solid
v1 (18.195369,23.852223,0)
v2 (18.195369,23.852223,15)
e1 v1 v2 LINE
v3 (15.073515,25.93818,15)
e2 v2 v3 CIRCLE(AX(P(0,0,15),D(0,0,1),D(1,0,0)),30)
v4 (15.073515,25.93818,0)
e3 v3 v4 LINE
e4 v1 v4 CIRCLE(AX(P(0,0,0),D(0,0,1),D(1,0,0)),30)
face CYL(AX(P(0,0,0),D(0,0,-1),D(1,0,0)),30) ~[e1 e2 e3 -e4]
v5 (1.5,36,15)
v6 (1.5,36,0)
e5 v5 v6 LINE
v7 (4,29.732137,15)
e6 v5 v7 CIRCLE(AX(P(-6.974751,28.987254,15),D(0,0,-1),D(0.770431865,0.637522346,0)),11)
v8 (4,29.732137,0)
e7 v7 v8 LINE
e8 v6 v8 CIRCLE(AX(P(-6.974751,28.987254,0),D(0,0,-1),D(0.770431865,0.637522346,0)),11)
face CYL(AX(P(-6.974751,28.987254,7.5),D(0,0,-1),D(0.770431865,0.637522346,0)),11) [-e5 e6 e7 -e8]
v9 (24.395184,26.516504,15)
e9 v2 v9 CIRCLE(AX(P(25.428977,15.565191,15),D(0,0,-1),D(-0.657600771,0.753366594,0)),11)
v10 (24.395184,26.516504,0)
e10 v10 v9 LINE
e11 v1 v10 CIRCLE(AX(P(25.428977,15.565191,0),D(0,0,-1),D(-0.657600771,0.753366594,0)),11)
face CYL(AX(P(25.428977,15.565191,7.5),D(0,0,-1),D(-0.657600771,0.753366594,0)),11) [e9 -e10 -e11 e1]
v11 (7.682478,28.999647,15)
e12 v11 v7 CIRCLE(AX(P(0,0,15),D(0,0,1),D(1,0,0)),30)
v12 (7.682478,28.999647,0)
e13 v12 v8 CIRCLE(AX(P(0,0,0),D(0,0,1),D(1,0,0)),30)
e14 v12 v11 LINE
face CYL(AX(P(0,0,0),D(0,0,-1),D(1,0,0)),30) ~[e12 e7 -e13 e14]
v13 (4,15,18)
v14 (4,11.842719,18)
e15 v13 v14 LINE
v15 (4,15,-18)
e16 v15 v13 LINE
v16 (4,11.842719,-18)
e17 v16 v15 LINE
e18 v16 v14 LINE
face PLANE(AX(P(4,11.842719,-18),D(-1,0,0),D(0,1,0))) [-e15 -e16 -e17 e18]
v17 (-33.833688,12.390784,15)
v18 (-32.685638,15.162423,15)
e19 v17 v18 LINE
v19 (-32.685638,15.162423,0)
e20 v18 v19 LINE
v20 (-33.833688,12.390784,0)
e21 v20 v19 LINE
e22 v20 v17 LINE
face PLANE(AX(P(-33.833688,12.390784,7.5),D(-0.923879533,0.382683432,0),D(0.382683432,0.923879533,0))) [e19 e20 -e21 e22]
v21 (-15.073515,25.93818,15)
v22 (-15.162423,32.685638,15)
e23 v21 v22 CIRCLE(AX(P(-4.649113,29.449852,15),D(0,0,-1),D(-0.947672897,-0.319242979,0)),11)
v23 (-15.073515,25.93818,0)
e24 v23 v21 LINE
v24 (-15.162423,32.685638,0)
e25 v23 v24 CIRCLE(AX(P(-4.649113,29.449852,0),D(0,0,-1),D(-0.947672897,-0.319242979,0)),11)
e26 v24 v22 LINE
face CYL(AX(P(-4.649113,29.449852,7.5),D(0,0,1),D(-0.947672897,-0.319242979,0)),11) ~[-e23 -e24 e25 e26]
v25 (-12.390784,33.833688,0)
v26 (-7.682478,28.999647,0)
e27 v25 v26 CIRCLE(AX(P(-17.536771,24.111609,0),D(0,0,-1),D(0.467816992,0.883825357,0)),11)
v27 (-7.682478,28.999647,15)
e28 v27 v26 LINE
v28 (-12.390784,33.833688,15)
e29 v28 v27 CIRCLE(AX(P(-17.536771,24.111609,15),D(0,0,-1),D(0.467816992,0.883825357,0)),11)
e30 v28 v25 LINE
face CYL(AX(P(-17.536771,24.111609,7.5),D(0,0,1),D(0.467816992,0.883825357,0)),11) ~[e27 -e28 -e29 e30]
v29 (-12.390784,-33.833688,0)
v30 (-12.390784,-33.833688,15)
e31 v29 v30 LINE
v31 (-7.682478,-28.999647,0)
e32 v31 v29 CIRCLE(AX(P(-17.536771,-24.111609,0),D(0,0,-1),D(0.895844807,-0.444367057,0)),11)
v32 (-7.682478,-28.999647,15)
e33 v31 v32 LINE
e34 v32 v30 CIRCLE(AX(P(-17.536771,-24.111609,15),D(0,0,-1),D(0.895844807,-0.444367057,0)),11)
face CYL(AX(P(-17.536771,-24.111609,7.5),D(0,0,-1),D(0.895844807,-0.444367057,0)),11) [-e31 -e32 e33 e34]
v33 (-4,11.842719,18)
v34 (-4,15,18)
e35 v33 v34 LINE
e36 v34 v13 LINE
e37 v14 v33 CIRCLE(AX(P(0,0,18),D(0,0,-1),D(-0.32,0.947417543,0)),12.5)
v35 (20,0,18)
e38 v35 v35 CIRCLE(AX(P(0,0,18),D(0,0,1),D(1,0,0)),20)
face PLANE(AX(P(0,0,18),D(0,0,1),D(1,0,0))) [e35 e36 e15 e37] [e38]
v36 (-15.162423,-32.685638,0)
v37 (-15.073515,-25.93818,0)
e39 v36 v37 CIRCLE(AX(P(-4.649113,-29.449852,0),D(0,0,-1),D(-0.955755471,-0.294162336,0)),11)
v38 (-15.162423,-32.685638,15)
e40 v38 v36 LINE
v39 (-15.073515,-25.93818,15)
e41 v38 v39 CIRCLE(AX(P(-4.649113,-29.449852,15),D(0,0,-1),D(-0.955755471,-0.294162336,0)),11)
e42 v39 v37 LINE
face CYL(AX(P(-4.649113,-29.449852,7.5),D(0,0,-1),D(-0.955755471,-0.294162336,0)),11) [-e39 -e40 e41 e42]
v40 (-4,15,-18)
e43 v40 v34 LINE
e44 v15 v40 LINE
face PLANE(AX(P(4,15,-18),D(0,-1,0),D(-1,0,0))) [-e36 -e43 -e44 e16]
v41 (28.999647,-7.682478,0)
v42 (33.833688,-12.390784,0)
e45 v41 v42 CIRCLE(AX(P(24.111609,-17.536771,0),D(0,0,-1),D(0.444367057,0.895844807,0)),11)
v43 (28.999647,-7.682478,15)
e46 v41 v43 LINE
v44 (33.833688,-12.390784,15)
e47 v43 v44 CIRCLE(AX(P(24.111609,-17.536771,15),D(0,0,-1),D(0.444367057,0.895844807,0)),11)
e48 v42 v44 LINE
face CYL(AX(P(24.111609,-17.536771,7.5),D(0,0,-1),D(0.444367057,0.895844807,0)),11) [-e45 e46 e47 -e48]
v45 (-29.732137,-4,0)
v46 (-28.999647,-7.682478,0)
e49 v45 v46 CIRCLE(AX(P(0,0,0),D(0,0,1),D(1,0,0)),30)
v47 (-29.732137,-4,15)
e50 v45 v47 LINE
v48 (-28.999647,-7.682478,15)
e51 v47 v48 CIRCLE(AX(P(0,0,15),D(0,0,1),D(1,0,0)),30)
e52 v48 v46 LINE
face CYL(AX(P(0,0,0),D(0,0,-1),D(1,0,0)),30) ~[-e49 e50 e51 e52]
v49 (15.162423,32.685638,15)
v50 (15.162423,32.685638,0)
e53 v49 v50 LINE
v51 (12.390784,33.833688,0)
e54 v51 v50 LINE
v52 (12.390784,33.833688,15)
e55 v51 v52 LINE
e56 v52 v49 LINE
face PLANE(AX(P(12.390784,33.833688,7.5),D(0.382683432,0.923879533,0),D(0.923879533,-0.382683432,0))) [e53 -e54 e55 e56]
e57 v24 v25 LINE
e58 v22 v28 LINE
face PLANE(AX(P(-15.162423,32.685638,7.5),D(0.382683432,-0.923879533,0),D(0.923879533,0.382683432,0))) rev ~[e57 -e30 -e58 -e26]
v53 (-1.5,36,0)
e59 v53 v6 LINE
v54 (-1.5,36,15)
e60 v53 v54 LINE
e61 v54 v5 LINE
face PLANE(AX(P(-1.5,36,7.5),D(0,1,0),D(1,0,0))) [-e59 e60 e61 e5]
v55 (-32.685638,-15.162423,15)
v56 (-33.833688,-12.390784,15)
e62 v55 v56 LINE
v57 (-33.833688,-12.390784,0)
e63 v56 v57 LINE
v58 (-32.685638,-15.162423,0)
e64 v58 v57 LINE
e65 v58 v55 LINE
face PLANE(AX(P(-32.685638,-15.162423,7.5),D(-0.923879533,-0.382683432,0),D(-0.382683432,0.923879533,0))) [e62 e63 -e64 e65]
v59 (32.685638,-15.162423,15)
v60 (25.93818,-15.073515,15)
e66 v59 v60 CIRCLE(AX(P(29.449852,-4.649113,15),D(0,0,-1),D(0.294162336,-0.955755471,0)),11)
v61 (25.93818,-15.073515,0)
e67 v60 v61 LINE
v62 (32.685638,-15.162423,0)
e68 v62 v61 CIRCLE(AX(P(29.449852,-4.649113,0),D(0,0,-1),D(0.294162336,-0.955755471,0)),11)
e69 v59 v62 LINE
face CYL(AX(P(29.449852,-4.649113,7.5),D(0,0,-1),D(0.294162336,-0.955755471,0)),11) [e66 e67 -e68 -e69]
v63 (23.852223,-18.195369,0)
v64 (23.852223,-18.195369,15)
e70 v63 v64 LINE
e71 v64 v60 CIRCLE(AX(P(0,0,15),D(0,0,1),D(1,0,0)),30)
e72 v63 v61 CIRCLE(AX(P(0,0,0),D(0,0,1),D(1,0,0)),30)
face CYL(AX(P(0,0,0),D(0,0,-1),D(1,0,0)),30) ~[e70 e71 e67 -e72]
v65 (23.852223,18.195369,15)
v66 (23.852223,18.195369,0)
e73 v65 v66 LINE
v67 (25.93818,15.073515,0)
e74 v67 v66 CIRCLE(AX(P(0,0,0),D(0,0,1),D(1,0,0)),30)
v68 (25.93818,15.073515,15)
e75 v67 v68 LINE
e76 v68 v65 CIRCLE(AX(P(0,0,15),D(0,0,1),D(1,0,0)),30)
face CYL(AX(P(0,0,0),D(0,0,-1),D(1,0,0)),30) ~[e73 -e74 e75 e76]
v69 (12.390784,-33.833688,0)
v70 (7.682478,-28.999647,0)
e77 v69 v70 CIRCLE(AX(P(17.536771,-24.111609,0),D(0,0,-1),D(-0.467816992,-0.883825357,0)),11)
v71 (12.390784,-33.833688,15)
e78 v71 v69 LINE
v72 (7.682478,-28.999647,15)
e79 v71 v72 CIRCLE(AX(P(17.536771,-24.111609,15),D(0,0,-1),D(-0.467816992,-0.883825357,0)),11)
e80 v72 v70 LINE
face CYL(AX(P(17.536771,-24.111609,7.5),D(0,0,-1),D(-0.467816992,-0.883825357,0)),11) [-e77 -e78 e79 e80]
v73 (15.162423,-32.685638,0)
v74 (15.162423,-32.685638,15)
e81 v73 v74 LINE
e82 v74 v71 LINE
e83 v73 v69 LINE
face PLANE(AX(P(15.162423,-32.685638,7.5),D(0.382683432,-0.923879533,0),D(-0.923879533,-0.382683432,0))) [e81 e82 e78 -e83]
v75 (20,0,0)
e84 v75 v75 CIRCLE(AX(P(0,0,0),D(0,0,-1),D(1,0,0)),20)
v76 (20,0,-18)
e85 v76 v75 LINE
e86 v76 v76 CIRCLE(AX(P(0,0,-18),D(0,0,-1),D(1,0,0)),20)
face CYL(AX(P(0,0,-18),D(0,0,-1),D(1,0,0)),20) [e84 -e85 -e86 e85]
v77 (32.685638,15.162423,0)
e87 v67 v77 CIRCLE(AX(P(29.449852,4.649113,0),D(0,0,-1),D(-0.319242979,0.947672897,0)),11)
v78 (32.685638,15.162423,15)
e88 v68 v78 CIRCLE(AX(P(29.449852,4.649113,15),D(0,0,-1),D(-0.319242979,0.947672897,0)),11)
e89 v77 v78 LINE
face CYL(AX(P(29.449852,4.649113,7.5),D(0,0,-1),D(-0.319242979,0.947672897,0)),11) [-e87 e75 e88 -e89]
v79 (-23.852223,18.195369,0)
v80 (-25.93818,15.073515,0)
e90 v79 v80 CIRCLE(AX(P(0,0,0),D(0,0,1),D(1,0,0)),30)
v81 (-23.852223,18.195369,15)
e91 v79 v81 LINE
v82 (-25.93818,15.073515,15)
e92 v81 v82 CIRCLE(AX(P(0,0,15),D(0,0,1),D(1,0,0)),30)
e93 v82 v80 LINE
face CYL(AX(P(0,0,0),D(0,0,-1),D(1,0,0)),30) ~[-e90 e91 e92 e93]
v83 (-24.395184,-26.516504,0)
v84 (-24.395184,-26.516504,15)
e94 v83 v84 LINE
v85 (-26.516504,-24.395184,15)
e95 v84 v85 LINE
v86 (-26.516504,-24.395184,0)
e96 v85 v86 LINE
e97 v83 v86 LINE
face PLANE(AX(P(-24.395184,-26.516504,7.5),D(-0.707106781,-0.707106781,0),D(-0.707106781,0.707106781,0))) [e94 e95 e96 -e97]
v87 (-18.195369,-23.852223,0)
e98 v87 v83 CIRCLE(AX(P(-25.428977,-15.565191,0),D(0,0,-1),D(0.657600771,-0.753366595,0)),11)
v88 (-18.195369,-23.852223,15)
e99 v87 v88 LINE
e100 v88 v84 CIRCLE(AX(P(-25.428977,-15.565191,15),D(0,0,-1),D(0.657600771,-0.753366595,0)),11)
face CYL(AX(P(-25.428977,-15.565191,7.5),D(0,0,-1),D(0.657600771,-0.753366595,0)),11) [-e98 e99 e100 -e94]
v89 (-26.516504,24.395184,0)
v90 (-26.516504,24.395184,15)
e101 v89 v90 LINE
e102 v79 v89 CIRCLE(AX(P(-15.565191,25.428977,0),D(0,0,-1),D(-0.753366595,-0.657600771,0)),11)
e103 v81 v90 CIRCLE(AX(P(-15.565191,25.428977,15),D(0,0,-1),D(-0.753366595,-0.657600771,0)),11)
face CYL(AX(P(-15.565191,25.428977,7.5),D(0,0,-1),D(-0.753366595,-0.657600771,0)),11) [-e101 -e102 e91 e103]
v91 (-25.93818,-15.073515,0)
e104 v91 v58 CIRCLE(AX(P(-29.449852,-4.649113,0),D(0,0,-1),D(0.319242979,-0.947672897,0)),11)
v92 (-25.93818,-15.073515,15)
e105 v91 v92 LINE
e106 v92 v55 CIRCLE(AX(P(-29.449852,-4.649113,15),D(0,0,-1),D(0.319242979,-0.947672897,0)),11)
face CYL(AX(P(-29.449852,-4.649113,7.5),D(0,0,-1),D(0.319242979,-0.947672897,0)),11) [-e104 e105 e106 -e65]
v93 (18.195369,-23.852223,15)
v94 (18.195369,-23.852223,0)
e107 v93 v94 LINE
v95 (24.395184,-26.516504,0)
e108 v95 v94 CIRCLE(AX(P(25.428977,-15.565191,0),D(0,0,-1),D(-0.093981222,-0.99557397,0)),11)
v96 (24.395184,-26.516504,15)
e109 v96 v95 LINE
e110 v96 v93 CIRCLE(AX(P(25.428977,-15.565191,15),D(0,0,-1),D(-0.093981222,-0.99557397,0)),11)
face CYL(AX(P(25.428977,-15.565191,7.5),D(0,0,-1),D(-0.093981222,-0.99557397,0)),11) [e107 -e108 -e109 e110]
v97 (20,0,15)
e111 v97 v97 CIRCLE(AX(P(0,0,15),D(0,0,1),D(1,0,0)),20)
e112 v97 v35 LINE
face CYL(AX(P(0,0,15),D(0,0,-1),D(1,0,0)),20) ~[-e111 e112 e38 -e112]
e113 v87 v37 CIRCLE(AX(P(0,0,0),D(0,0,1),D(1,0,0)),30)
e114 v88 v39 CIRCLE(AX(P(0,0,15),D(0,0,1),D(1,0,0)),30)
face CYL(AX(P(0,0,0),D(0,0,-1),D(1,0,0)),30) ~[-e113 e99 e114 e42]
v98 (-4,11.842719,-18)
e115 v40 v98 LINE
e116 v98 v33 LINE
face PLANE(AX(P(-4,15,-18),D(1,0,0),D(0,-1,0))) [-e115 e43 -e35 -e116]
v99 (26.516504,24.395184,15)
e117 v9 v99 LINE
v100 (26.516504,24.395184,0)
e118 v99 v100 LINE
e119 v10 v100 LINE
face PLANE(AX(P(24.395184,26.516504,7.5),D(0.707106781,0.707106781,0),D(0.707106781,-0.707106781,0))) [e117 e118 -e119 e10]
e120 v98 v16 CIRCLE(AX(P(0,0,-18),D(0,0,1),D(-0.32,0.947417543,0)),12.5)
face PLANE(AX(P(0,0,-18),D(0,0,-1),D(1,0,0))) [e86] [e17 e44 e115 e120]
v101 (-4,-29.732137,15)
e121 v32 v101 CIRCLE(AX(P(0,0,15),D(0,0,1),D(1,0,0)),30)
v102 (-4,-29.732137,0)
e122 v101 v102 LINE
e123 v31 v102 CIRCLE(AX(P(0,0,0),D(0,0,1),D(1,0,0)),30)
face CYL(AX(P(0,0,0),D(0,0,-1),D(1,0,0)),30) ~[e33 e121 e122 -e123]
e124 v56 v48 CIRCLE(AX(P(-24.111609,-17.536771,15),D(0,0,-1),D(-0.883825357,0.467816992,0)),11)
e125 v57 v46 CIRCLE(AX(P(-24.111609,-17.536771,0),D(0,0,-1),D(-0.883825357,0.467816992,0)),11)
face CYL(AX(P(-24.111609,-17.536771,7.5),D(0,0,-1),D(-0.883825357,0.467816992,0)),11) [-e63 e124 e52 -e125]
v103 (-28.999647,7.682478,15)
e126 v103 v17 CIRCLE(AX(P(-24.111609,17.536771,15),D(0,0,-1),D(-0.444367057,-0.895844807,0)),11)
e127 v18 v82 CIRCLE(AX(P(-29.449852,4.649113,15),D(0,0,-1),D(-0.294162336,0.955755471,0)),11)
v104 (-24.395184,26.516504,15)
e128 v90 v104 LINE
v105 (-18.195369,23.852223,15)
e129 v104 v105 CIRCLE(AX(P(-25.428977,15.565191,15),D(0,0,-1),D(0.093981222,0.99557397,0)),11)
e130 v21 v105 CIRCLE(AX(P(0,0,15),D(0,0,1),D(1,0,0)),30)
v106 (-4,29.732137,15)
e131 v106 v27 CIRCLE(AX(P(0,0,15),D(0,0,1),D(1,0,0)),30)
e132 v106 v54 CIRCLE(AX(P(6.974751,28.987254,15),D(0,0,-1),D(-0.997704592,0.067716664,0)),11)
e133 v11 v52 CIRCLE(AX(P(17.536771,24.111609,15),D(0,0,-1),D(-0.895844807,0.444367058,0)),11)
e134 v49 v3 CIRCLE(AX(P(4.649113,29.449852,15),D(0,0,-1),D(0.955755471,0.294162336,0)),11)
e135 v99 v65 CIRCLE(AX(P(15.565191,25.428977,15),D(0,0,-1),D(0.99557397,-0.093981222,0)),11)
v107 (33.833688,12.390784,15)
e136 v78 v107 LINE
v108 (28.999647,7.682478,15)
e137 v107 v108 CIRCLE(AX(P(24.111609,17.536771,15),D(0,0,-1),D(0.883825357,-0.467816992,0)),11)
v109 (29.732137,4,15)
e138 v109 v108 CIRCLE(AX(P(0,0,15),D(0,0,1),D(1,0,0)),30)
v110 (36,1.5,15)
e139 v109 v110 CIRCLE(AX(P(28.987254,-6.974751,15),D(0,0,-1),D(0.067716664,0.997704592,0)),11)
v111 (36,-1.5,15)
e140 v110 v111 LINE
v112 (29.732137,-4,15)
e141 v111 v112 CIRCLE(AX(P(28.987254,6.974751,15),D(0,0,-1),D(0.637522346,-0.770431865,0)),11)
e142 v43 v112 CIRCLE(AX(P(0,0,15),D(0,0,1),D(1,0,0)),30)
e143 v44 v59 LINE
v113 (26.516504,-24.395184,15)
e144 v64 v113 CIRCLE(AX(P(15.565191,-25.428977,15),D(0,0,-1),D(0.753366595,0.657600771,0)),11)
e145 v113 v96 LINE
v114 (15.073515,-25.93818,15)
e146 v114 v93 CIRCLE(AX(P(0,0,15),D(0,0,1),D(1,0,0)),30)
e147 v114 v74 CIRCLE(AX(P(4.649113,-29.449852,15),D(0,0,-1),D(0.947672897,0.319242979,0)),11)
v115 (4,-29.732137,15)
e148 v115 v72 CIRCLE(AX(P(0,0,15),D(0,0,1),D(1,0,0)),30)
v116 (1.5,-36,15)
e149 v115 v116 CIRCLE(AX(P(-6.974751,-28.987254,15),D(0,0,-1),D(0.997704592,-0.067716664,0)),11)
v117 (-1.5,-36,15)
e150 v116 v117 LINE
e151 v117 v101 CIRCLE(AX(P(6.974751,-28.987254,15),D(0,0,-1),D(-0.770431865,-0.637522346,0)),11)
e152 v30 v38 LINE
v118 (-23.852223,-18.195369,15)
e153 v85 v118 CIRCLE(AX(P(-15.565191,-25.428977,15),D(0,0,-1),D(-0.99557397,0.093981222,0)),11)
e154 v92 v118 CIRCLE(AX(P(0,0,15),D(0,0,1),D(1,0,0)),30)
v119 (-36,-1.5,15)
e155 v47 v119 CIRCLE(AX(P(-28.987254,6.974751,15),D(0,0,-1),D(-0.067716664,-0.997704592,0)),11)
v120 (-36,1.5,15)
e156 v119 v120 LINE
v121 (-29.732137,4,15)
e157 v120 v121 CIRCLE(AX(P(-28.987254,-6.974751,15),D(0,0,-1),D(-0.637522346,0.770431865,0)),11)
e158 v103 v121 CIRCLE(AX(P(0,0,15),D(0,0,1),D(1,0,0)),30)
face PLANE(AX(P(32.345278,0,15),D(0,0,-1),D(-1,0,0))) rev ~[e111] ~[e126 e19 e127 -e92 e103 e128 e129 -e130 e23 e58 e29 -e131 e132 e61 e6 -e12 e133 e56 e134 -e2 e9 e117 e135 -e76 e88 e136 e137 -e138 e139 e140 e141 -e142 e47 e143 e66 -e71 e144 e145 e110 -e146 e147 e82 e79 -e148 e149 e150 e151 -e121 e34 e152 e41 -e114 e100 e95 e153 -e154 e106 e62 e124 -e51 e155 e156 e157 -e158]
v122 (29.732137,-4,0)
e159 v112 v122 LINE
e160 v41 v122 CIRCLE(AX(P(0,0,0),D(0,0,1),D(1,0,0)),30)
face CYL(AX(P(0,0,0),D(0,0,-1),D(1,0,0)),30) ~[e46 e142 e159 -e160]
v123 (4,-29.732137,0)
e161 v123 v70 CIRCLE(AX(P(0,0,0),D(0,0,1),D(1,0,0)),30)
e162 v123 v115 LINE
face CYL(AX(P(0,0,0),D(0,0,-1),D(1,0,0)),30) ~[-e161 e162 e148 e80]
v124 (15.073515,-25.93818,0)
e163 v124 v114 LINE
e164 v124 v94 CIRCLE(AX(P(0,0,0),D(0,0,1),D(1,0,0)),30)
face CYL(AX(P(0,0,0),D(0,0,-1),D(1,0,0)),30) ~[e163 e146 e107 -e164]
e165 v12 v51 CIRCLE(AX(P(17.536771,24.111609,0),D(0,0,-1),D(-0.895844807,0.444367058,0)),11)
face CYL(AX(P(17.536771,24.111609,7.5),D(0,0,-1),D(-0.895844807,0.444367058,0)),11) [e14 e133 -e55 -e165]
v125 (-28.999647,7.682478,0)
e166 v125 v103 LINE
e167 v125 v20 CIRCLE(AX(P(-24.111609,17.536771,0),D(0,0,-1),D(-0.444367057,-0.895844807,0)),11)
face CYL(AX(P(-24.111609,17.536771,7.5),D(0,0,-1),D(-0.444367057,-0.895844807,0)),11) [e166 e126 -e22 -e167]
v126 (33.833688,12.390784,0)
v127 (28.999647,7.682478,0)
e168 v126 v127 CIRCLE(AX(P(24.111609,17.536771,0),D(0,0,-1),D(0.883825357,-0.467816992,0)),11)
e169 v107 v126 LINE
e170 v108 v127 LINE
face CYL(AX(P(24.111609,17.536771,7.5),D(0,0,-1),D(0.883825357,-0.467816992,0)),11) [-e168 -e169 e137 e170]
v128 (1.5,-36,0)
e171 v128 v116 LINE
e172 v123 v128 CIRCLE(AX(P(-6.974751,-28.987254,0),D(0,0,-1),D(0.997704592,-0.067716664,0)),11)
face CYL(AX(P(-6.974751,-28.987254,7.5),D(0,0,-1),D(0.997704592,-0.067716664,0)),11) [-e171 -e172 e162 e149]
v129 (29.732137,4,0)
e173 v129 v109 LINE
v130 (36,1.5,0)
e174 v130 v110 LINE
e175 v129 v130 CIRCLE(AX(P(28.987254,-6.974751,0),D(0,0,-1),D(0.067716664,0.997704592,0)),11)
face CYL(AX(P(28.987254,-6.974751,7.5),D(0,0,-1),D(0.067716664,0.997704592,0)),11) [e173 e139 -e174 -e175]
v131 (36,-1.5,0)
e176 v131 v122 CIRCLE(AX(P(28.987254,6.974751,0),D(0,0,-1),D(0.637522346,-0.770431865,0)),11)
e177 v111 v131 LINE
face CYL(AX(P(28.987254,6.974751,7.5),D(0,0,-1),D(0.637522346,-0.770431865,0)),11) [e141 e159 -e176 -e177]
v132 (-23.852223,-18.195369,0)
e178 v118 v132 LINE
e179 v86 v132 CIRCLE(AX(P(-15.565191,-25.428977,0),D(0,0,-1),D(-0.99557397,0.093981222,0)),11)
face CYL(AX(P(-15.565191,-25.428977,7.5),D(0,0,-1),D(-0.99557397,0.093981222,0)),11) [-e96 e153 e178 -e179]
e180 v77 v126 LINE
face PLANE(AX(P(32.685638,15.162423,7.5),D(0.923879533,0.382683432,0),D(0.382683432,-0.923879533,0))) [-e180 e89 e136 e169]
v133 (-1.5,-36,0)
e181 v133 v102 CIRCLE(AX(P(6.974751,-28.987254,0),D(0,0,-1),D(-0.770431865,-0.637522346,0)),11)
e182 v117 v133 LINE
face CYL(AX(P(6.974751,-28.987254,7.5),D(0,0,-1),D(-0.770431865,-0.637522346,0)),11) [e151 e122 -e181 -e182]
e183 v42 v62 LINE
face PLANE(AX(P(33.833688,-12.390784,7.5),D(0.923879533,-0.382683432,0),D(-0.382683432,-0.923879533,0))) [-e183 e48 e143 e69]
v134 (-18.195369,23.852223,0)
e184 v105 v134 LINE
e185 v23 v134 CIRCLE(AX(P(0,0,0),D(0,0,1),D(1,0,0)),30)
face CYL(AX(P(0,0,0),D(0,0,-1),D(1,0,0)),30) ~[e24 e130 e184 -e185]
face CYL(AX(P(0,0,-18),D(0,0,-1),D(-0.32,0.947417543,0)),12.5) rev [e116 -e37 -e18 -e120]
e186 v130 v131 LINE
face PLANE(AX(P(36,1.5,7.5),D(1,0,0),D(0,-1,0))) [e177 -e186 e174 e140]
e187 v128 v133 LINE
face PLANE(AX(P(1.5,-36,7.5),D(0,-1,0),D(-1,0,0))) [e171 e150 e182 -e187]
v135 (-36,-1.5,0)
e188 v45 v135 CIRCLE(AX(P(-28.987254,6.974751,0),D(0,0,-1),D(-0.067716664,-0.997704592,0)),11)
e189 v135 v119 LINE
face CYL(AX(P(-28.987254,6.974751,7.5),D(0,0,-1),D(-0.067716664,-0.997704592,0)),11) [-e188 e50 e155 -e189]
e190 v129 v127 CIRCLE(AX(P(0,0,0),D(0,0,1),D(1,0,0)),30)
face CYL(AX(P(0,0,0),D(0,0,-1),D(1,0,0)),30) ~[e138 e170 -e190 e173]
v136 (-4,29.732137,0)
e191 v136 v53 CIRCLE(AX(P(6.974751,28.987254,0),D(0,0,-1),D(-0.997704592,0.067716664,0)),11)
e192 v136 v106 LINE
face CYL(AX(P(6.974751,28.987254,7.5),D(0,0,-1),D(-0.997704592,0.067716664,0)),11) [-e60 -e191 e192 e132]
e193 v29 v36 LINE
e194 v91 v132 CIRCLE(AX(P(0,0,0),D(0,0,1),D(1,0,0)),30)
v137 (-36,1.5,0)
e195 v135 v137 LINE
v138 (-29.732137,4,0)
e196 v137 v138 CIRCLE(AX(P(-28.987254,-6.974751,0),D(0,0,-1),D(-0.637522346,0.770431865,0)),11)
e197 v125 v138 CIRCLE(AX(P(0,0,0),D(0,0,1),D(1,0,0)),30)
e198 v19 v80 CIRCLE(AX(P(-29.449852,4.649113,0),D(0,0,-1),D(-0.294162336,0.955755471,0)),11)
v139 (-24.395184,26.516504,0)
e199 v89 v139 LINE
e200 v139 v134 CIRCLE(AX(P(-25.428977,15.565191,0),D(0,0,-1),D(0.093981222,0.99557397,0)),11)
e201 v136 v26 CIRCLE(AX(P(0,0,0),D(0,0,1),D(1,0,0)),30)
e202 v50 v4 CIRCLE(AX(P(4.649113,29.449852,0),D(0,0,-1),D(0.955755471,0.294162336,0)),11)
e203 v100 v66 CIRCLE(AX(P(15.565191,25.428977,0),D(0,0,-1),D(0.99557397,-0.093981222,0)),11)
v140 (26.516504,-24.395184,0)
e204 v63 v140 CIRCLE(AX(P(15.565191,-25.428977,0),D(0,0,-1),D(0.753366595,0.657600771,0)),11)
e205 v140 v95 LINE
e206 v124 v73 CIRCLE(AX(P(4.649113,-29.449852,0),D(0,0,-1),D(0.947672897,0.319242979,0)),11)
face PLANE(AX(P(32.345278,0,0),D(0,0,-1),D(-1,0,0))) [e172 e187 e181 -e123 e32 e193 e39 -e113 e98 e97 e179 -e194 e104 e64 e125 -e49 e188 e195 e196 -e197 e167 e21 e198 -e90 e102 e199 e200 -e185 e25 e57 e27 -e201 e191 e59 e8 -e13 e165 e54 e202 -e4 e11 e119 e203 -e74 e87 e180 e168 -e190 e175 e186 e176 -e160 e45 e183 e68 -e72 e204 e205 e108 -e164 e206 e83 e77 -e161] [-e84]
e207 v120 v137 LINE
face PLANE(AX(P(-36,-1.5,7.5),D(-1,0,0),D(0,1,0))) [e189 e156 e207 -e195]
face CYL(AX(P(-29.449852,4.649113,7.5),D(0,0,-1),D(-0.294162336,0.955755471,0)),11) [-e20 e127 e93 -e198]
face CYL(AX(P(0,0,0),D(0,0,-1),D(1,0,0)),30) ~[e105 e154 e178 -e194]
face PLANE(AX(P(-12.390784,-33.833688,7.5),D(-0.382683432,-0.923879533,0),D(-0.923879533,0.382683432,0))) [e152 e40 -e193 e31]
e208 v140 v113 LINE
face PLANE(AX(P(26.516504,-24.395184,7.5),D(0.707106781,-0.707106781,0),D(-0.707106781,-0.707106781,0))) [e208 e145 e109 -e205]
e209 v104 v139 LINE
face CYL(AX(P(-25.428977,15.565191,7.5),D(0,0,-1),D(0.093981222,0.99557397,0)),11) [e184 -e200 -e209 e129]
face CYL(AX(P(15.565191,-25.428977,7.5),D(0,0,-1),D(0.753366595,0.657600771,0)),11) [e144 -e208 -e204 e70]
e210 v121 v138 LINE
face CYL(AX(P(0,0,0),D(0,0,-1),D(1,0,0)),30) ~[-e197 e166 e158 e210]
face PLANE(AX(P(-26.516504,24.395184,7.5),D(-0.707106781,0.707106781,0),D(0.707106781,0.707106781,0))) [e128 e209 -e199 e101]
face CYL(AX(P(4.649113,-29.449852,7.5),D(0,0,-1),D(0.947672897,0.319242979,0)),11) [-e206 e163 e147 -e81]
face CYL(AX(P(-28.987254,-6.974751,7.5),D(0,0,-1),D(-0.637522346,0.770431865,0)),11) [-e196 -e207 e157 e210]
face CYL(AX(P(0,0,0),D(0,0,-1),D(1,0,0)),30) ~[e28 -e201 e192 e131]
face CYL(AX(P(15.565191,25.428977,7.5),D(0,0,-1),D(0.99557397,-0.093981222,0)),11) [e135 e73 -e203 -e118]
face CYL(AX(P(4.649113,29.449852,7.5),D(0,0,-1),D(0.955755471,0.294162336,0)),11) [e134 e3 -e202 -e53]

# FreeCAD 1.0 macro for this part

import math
import FreeCAD as App
import Part
import Sketcher
from FreeCAD import Vector
Q = App.Units.Quantity

doc = App.newDocument("Part")
params = doc.addObject("Spreadsheet::Sheet", "Params")
for row, (alias, value) in enumerate([
    ("sketch1_diameter", "60 mm"),
    ("pad1_length", "15 mm"),
    ("sketch2_diameter", "40 mm"),
    ("pad2_length", "3 mm"),
    ("sketch3_diameter", "40 mm"),
    ("pad3_length", "18 mm"),
    ("sketch4_radius", "12.5 mm"),
    ("sketch4_width", "8 mm"),
    ("sketch5_radius", "11 mm"),
    ("sketch5_radius2", "30 mm"),
    ("sketch5_width", "3 mm"),
    ("sketch5_length", "3 mm"),
    ("pad4_length", "15 mm"),
], start=1):
    params.set(f"A{row}", alias)
    params.set(f"B{row}", "=" + value)
    params.setAlias(f"B{row}", alias)

body = doc.addObject("PartDesign::Body", "Body")

# Sketch on XY plane
sketch1 = body.newObject("Sketcher::SketchObject", "Sketch")
sketch1.AttachmentSupport = (doc.getObject("XY_Plane"), [""])
sketch1.MapMode = "FlatFace"
sketch1.addGeometry(Part.Circle(Vector(0, 0, 0), Vector(0, 0, 1), 30), False)
sketch1.addConstraint([
    Sketcher.Constraint("Coincident", 0, 3, -1, 1),
    Sketcher.Constraint("Diameter", 0, Q("60 mm")),
])
sketch1.setExpression("Constraints[1]", "Params.sketch1_diameter")
pad1 = body.newObject("PartDesign::Pad", "Pad")
pad1.Profile = sketch1
pad1.setExpression("Length", "Params.pad1_length")

# Sketch on XY plane
sketch2 = body.newObject("Sketcher::SketchObject", "Sketch001")
sketch2.AttachmentSupport = (doc.getObject("XY_Plane"), [""])
sketch2.MapMode = "FlatFace"
sketch2.AttachmentOffset = App.Placement(Vector(0, 0, 15), App.Rotation())
sketch2.addGeometry(Part.Circle(Vector(0, 0, 0), Vector(0, 0, 1), 20), False)
sketch2.addConstraint([
    Sketcher.Constraint("Coincident", 0, 3, -1, 1),
    Sketcher.Constraint("Diameter", 0, Q("40 mm")),
])
sketch2.setExpression("Constraints[1]", "Params.sketch2_diameter")
pad2 = body.newObject("PartDesign::Pad", "Pad001")
pad2.Profile = sketch2
pad2.setExpression("Length", "Params.pad2_length")

# Sketch on XY plane
sketch3 = body.newObject("Sketcher::SketchObject", "Sketch002")
sketch3.AttachmentSupport = (doc.getObject("XY_Plane"), [""])
sketch3.MapMode = "FlatFace"
sketch3.AttachmentOffset = App.Placement(Vector(0, 0, -18), App.Rotation())
sketch3.addGeometry(Part.Circle(Vector(0, 0, 0), Vector(0, 0, 1), 20), False)
sketch3.addConstraint([
    Sketcher.Constraint("Coincident", 0, 3, -1, 1),
    Sketcher.Constraint("Diameter", 0, Q("40 mm")),
])
sketch3.setExpression("Constraints[1]", "Params.sketch3_diameter")
pad3 = body.newObject("PartDesign::Pad", "Pad002")
pad3.Profile = sketch3
pad3.setExpression("Length", "Params.pad3_length")

# Sketch on XY plane
sketch4 = body.newObject("Sketcher::SketchObject", "Sketch003")
sketch4.AttachmentSupport = (doc.getObject("XY_Plane"), [""])
sketch4.MapMode = "FlatFace"
sketch4.AttachmentOffset = App.Placement(Vector(0, 0, -18), App.Rotation())
sketch4.addGeometry([
    Part.LineSegment(Vector(-4, 15, 0), Vector(4, 15, 0)),
    Part.LineSegment(Vector(4, 15, 0), Vector(4, 11.8, 0)),
    Part.ArcOfCircle(Part.Circle(Vector(0, 0, 0), Vector(0, 0, 1), 12.5), math.radians(109), math.radians(431)),
    Part.LineSegment(Vector(-4, 11.8, 0), Vector(-4, 15, 0)),
], False)
sketch4.addConstraint([
    Sketcher.Constraint("Coincident", 0, 2, 1, 1),
    Sketcher.Constraint("Coincident", 1, 2, 2, 2),
    Sketcher.Constraint("Coincident", 2, 1, 3, 1),
    Sketcher.Constraint("Coincident", 3, 2, 0, 1),
    Sketcher.Constraint("Horizontal", 0),
    Sketcher.Constraint("Vertical", 1),
    Sketcher.Constraint("Vertical", 3),
    Sketcher.Constraint("Coincident", 2, 3, -1, 1),
    Sketcher.Constraint("Horizontal", 1, 2, 2, 1),
    Sketcher.Constraint("Radius", 2, Q("12.5 mm")),
    Sketcher.Constraint("DistanceX", 0, 1, 0, 2, Q("8 mm")),
    Sketcher.Constraint("DistanceY", -1, 1, 0, 2, Q("15 mm")),
])
sketch4.setExpression("Constraints[9]", "Params.sketch4_radius")
sketch4.setExpression("Constraints[10]", "Params.sketch4_width")
pocket1 = body.newObject("PartDesign::Pocket", "Pocket")
pocket1.Profile = sketch4
pocket1.Type = "ThroughAll"
pocket1.Reversed = True

# Sketch on XY plane
sketch5 = body.newObject("Sketcher::SketchObject", "Sketch004")
sketch5.AttachmentSupport = (doc.getObject("XY_Plane"), [""])
sketch5.MapMode = "FlatFace"
sketch5.AttachmentOffset = App.Placement(Vector(0, 0, 7.5), App.Rotation())
sketch5.addGeometry([
    Part.LineSegment(Vector(1.5, 36, 0), Vector(-1.5, 36, 0)),  # 0
    Part.ArcOfCircle(Part.Circle(Vector(7, 29, 0), Vector(0, 0, 1), 11), math.radians(140), math.radians(176)),  # 1
    Part.ArcOfCircle(Part.Circle(Vector(0, 0, 0), Vector(0, 0, 1), 30), math.radians(82.34), math.radians(97.66)),  # 2
    Part.ArcOfCircle(Part.Circle(Vector(-7, 29, 0), Vector(0, 0, 1), 11), math.radians(4), math.radians(40)),  # 3
    Part.LineSegment(Vector(15.2, 32.7, 0), Vector(12.4, 33.8, 0)),  # 4
    Part.ArcOfCircle(Part.Circle(Vector(17.5, 24.1, 0), Vector(0, 0, 1), 11), math.radians(118), math.radians(154)),  # 5
    Part.ArcOfCircle(Part.Circle(Vector(0, 0, 0), Vector(0, 0, 1), 30), math.radians(59.84), math.radians(75.16)),  # 6
    Part.ArcOfCircle(Part.Circle(Vector(4.6, 29.4, 0), Vector(0, 0, 1), 11), math.radians(-19), math.radians(17)),  # 7
    Part.LineSegment(Vector(26.5, 24.4, 0), Vector(24.4, 26.5, 0)),  # 8
    Part.ArcOfCircle(Part.Circle(Vector(25.4, 15.6, 0), Vector(0, 0, 1), 11), math.radians(95), math.radians(131)),  # 9
    Part.ArcOfCircle(Part.Circle(Vector(0, 0, 0), Vector(0, 0, 1), 30), math.radians(37.34), math.radians(52.66)),  # 10
    Part.ArcOfCircle(Part.Circle(Vector(15.6, 25.4, 0), Vector(0, 0, 1), 11), math.radians(-41), math.radians(-5)),  # 11
    Part.LineSegment(Vector(33.8, 12.4, 0), Vector(32.7, 15.2, 0)),  # 12
    Part.ArcOfCircle(Part.Circle(Vector(29.4, 4.6, 0), Vector(0, 0, 1), 11), math.radians(73), math.radians(109)),  # 13
    Part.ArcOfCircle(Part.Circle(Vector(0, 0, 0), Vector(0, 0, 1), 30), math.radians(14.84), math.radians(30.16)),  # 14
    Part.ArcOfCircle(Part.Circle(Vector(24.1, 17.5, 0), Vector(0, 0, 1), 11), math.radians(-64), math.radians(-28)),  # 15
    Part.LineSegment(Vector(36, -1.5, 0), Vector(36, 1.5, 0)),  # 16
    Part.ArcOfCircle(Part.Circle(Vector(29, -7, 0), Vector(0, 0, 1), 11), math.radians(50), math.radians(86)),  # 17
    Part.ArcOfCircle(Part.Circle(Vector(0, 0, 0), Vector(0, 0, 1), 30), math.radians(-7.66), math.radians(7.66)),  # 18
    Part.ArcOfCircle(Part.Circle(Vector(29, 7, 0), Vector(0, 0, 1), 11), math.radians(-86), math.radians(-50)),  # 19
    Part.LineSegment(Vector(32.7, -15.2, 0), Vector(33.8, -12.4, 0)),  # 20
    Part.ArcOfCircle(Part.Circle(Vector(24.1, -17.5, 0), Vector(0, 0, 1), 11), math.radians(28), math.radians(64)),  # 21
    Part.ArcOfCircle(Part.Circle(Vector(0, 0, 0), Vector(0, 0, 1), 30), math.radians(-30.16), math.radians(-14.84)),  # 22
    Part.ArcOfCircle(Part.Circle(Vector(29.4, -4.6, 0), Vector(0, 0, 1), 11), math.radians(-109), math.radians(-73)),  # 23
    Part.LineSegment(Vector(24.4, -26.5, 0), Vector(26.5, -24.4, 0)),  # 24
    Part.ArcOfCircle(Part.Circle(Vector(15.6, -25.4, 0), Vector(0, 0, 1), 11), math.radians(5), math.radians(41)),  # 25
    Part.ArcOfCircle(Part.Circle(Vector(0, 0, 0), Vector(0, 0, 1), 30), math.radians(-52.66), math.radians(-37.34)),  # 26
    Part.ArcOfCircle(Part.Circle(Vector(25.4, -15.6, 0), Vector(0, 0, 1), 11), math.radians(-131), math.radians(-95)),  # 27
    Part.LineSegment(Vector(12.4, -33.8, 0), Vector(15.2, -32.7, 0)),  # 28
    Part.ArcOfCircle(Part.Circle(Vector(4.6, -29.4, 0), Vector(0, 0, 1), 11), math.radians(-17), math.radians(19)),  # 29
    Part.ArcOfCircle(Part.Circle(Vector(0, 0, 0), Vector(0, 0, 1), 30), math.radians(-75.16), math.radians(-59.84)),  # 30
    Part.ArcOfCircle(Part.Circle(Vector(17.5, -24.1, 0), Vector(0, 0, 1), 11), math.radians(-154), math.radians(-118)),  # 31
    Part.LineSegment(Vector(-1.5, -36, 0), Vector(1.5, -36, 0)),  # 32
    Part.ArcOfCircle(Part.Circle(Vector(-7, -29, 0), Vector(0, 0, 1), 11), math.radians(-40), math.radians(-4)),  # 33
    Part.ArcOfCircle(Part.Circle(Vector(0, 0, 0), Vector(0, 0, 1), 30), math.radians(-97.66), math.radians(-82.34)),  # 34
    Part.ArcOfCircle(Part.Circle(Vector(7, -29, 0), Vector(0, 0, 1), 11), math.radians(-176), math.radians(-140)),  # 35
    Part.LineSegment(Vector(-15.2, -32.7, 0), Vector(-12.4, -33.8, 0)),  # 36
    Part.ArcOfCircle(Part.Circle(Vector(-17.5, -24.1, 0), Vector(0, 0, 1), 11), math.radians(-62), math.radians(-26)),  # 37
    Part.ArcOfCircle(Part.Circle(Vector(0, 0, 0), Vector(0, 0, 1), 30), math.radians(-120.16), math.radians(-104.84)),  # 38
    Part.ArcOfCircle(Part.Circle(Vector(-4.6, -29.4, 0), Vector(0, 0, 1), 11), math.radians(161), math.radians(197)),  # 39
    Part.LineSegment(Vector(-26.5, -24.4, 0), Vector(-24.4, -26.5, 0)),  # 40
    Part.ArcOfCircle(Part.Circle(Vector(-25.4, -15.6, 0), Vector(0, 0, 1), 11), math.radians(-85), math.radians(-49)),  # 41
    Part.ArcOfCircle(Part.Circle(Vector(0, 0, 0), Vector(0, 0, 1), 30), math.radians(-142.66), math.radians(-127.34)),  # 42
    Part.ArcOfCircle(Part.Circle(Vector(-15.6, -25.4, 0), Vector(0, 0, 1), 11), math.radians(139), math.radians(175)),  # 43
    Part.LineSegment(Vector(-33.8, -12.4, 0), Vector(-32.7, -15.2, 0)),  # 44
    Part.ArcOfCircle(Part.Circle(Vector(-29.4, -4.6, 0), Vector(0, 0, 1), 11), math.radians(-107), math.radians(-71)),  # 45
    Part.ArcOfCircle(Part.Circle(Vector(0, 0, 0), Vector(0, 0, 1), 30), math.radians(-165.16), math.radians(-149.84)),  # 46
    Part.ArcOfCircle(Part.Circle(Vector(-24.1, -17.5, 0), Vector(0, 0, 1), 11), math.radians(116), math.radians(152)),  # 47
    Part.LineSegment(Vector(-36, 1.5, 0), Vector(-36, -1.5, 0)),  # 48
    Part.ArcOfCircle(Part.Circle(Vector(-29, 7, 0), Vector(0, 0, 1), 11), math.radians(-130), math.radians(-94)),  # 49
    Part.ArcOfCircle(Part.Circle(Vector(0, 0, 0), Vector(0, 0, 1), 30), math.radians(172.34), math.radians(187.66)),  # 50
    Part.ArcOfCircle(Part.Circle(Vector(-29, -7, 0), Vector(0, 0, 1), 11), math.radians(94), math.radians(130)),  # 51
    Part.LineSegment(Vector(-32.7, 15.2, 0), Vector(-33.8, 12.4, 0)),  # 52
    Part.ArcOfCircle(Part.Circle(Vector(-24.1, 17.5, 0), Vector(0, 0, 1), 11), math.radians(-152), math.radians(-116)),  # 53
    Part.ArcOfCircle(Part.Circle(Vector(0, 0, 0), Vector(0, 0, 1), 30), math.radians(149.84), math.radians(165.16)),  # 54
    Part.ArcOfCircle(Part.Circle(Vector(-29.4, 4.6, 0), Vector(0, 0, 1), 11), math.radians(71), math.radians(107)),  # 55
    Part.LineSegment(Vector(-24.4, 26.5, 0), Vector(-26.5, 24.4, 0)),  # 56
    Part.ArcOfCircle(Part.Circle(Vector(-15.6, 25.4, 0), Vector(0, 0, 1), 11), math.radians(-175), math.radians(-139)),  # 57
    Part.ArcOfCircle(Part.Circle(Vector(0, 0, 0), Vector(0, 0, 1), 30), math.radians(127.34), math.radians(142.66)),  # 58
    Part.ArcOfCircle(Part.Circle(Vector(-25.4, 15.6, 0), Vector(0, 0, 1), 11), math.radians(49), math.radians(85)),  # 59
    Part.LineSegment(Vector(-12.4, 33.8, 0), Vector(-15.2, 32.7, 0)),  # 60
    Part.ArcOfCircle(Part.Circle(Vector(-4.6, 29.4, 0), Vector(0, 0, 1), 11), math.radians(163), math.radians(199)),  # 61
    Part.ArcOfCircle(Part.Circle(Vector(0, 0, 0), Vector(0, 0, 1), 30), math.radians(104.84), math.radians(120.16)),  # 62
    Part.ArcOfCircle(Part.Circle(Vector(-17.5, 24.1, 0), Vector(0, 0, 1), 11), math.radians(26), math.radians(62)),  # 63
], False)
sketch5.addConstraint([
    Sketcher.Constraint("Coincident", 0, 2, 1, 1),
    Sketcher.Constraint("Coincident", 1, 2, 2, 2),
    Sketcher.Constraint("Coincident", 2, 1, 3, 1),
    Sketcher.Constraint("Coincident", 3, 2, 0, 1),
    Sketcher.Constraint("Coincident", 4, 2, 5, 1),
    Sketcher.Constraint("Coincident", 5, 2, 6, 2),
    Sketcher.Constraint("Coincident", 6, 1, 7, 1),
    Sketcher.Constraint("Coincident", 7, 2, 4, 1),
    Sketcher.Constraint("Coincident", 8, 2, 9, 1),
    Sketcher.Constraint("Coincident", 9, 2, 10, 2),
    Sketcher.Constraint("Coincident", 10, 1, 11, 1),
    Sketcher.Constraint("Coincident", 11, 2, 8, 1),
    Sketcher.Constraint("Coincident", 12, 2, 13, 1),
    Sketcher.Constraint("Coincident", 13, 2, 14, 2),
    Sketcher.Constraint("Coincident", 14, 1, 15, 1),
    Sketcher.Constraint("Coincident", 15, 2, 12, 1),
    Sketcher.Constraint("Coincident", 16, 2, 17, 1),
    Sketcher.Constraint("Coincident", 17, 2, 18, 2),
    Sketcher.Constraint("Coincident", 18, 1, 19, 1),
    Sketcher.Constraint("Coincident", 19, 2, 16, 1),
    Sketcher.Constraint("Coincident", 20, 2, 21, 1),
    Sketcher.Constraint("Coincident", 21, 2, 22, 2),
    Sketcher.Constraint("Coincident", 22, 1, 23, 1),
    Sketcher.Constraint("Coincident", 23, 2, 20, 1),
    Sketcher.Constraint("Coincident", 24, 2, 25, 1),
    Sketcher.Constraint("Coincident", 25, 2, 26, 2),
    Sketcher.Constraint("Coincident", 26, 1, 27, 1),
    Sketcher.Constraint("Coincident", 27, 2, 24, 1),
    Sketcher.Constraint("Coincident", 28, 2, 29, 1),
    Sketcher.Constraint("Coincident", 29, 2, 30, 2),
    Sketcher.Constraint("Coincident", 30, 1, 31, 1),
    Sketcher.Constraint("Coincident", 31, 2, 28, 1),
    Sketcher.Constraint("Coincident", 32, 2, 33, 1),
    Sketcher.Constraint("Coincident", 33, 2, 34, 2),
    Sketcher.Constraint("Coincident", 34, 1, 35, 1),
    Sketcher.Constraint("Coincident", 35, 2, 32, 1),
    Sketcher.Constraint("Coincident", 36, 2, 37, 1),
    Sketcher.Constraint("Coincident", 37, 2, 38, 2),
    Sketcher.Constraint("Coincident", 38, 1, 39, 1),
    Sketcher.Constraint("Coincident", 39, 2, 36, 1),
    Sketcher.Constraint("Coincident", 40, 2, 41, 1),
    Sketcher.Constraint("Coincident", 41, 2, 42, 2),
    Sketcher.Constraint("Coincident", 42, 1, 43, 1),
    Sketcher.Constraint("Coincident", 43, 2, 40, 1),
    Sketcher.Constraint("Coincident", 44, 2, 45, 1),
    Sketcher.Constraint("Coincident", 45, 2, 46, 2),
    Sketcher.Constraint("Coincident", 46, 1, 47, 1),
    Sketcher.Constraint("Coincident", 47, 2, 44, 1),
    Sketcher.Constraint("Coincident", 48, 2, 49, 1),
    Sketcher.Constraint("Coincident", 49, 2, 50, 2),
    Sketcher.Constraint("Coincident", 50, 1, 51, 1),
    Sketcher.Constraint("Coincident", 51, 2, 48, 1),
    Sketcher.Constraint("Coincident", 52, 2, 53, 1),
    Sketcher.Constraint("Coincident", 53, 2, 54, 2),
    Sketcher.Constraint("Coincident", 54, 1, 55, 1),
    Sketcher.Constraint("Coincident", 55, 2, 52, 1),
    Sketcher.Constraint("Coincident", 56, 2, 57, 1),
    Sketcher.Constraint("Coincident", 57, 2, 58, 2),
    Sketcher.Constraint("Coincident", 58, 1, 59, 1),
    Sketcher.Constraint("Coincident", 59, 2, 56, 1),
    Sketcher.Constraint("Coincident", 60, 2, 61, 1),
    Sketcher.Constraint("Coincident", 61, 2, 62, 2),
    Sketcher.Constraint("Coincident", 62, 1, 63, 1),
    Sketcher.Constraint("Coincident", 63, 2, 60, 1),
    Sketcher.Constraint("Horizontal", 0),
    Sketcher.Constraint("Vertical", 16),
    Sketcher.Constraint("Horizontal", 32),
    Sketcher.Constraint("Vertical", 48),
    Sketcher.Constraint("Coincident", 2, 3, -1, 1),
    Sketcher.Constraint("Coincident", 6, 3, -1, 1),
    Sketcher.Constraint("Coincident", 10, 3, -1, 1),
    Sketcher.Constraint("Coincident", 14, 3, -1, 1),
    Sketcher.Constraint("Coincident", 18, 3, -1, 1),
    Sketcher.Constraint("Coincident", 22, 3, -1, 1),
    Sketcher.Constraint("Coincident", 26, 3, -1, 1),
    Sketcher.Constraint("Coincident", 30, 3, -1, 1),
    Sketcher.Constraint("Coincident", 34, 3, -1, 1),
    Sketcher.Constraint("Coincident", 38, 3, -1, 1),
    Sketcher.Constraint("Coincident", 42, 3, -1, 1),
    Sketcher.Constraint("Coincident", 46, 3, -1, 1),
    Sketcher.Constraint("Coincident", 50, 3, -1, 1),
    Sketcher.Constraint("Coincident", 54, 3, -1, 1),
    Sketcher.Constraint("Coincident", 58, 3, -1, 1),
    Sketcher.Constraint("Coincident", 62, 3, -1, 1),
    Sketcher.Constraint("Equal", 1, 3),
    Sketcher.Constraint("Equal", 3, 5),
    Sketcher.Constraint("Equal", 2, 6),
    Sketcher.Constraint("Equal", 5, 7),
    Sketcher.Constraint("Equal", 7, 9),
    Sketcher.Constraint("Equal", 6, 10),
    Sketcher.Constraint("Equal", 9, 11),
    Sketcher.Constraint("Equal", 11, 13),
    Sketcher.Constraint("Equal", 10, 14),
    Sketcher.Constraint("Equal", 13, 15),
    Sketcher.Constraint("Equal", 15, 17),
    Sketcher.Constraint("Equal", 14, 18),
    Sketcher.Constraint("Equal", 17, 19),
    Sketcher.Constraint("Equal", 19, 21),
    Sketcher.Constraint("Equal", 18, 22),
    Sketcher.Constraint("Equal", 21, 23),
    Sketcher.Constraint("Equal", 23, 25),
    Sketcher.Constraint("Equal", 22, 26),
    Sketcher.Constraint("Equal", 25, 27),
    Sketcher.Constraint("Equal", 27, 29),
    Sketcher.Constraint("Equal", 26, 30),
    Sketcher.Constraint("Equal", 29, 31),
    Sketcher.Constraint("Equal", 31, 33),
    Sketcher.Constraint("Equal", 30, 34),
    Sketcher.Constraint("Equal", 33, 35),
    Sketcher.Constraint("Equal", 35, 37),
    Sketcher.Constraint("Equal", 34, 38),
    Sketcher.Constraint("Equal", 37, 39),
    Sketcher.Constraint("Equal", 39, 41),
    Sketcher.Constraint("Equal", 38, 42),
    Sketcher.Constraint("Equal", 41, 43),
    Sketcher.Constraint("Equal", 43, 45),
    Sketcher.Constraint("Equal", 42, 46),
    Sketcher.Constraint("Equal", 45, 47),
    Sketcher.Constraint("Equal", 47, 49),
    Sketcher.Constraint("Equal", 46, 50),
    Sketcher.Constraint("Equal", 49, 51),
    Sketcher.Constraint("Equal", 51, 53),
    Sketcher.Constraint("Equal", 50, 54),
    Sketcher.Constraint("Equal", 53, 55),
    Sketcher.Constraint("Equal", 55, 57),
    Sketcher.Constraint("Equal", 54, 58),
    Sketcher.Constraint("Equal", 57, 59),
    Sketcher.Constraint("Equal", 59, 61),
    Sketcher.Constraint("Equal", 58, 62),
    Sketcher.Constraint("Equal", 61, 63),
    Sketcher.Constraint("Symmetric", 1, 3, 33, 3, -1, 1),
    Sketcher.Constraint("Symmetric", 3, 3, 35, 3, -1, 1),
    Sketcher.Constraint("Symmetric", 5, 3, 37, 3, -1, 1),
    Sketcher.Constraint("Symmetric", 7, 3, 39, 3, -1, 1),
    Sketcher.Constraint("Symmetric", 9, 3, 41, 3, -1, 1),
    Sketcher.Constraint("Symmetric", 11, 3, 43, 3, -1, 1),
    Sketcher.Constraint("Symmetric", 13, 3, 45, 3, -1, 1),
    Sketcher.Constraint("Symmetric", 15, 3, 47, 3, -1, 1),
    Sketcher.Constraint("Symmetric", 17, 3, 49, 3, -1, 1),
    Sketcher.Constraint("Symmetric", 19, 3, 51, 3, -1, 1),
    Sketcher.Constraint("Symmetric", 21, 3, 53, 3, -1, 1),
    Sketcher.Constraint("Symmetric", 23, 3, 55, 3, -1, 1),
    Sketcher.Constraint("Symmetric", 25, 3, 57, 3, -1, 1),
    Sketcher.Constraint("Symmetric", 27, 3, 59, 3, -1, 1),
    Sketcher.Constraint("Symmetric", 29, 3, 61, 3, -1, 1),
    Sketcher.Constraint("Symmetric", 31, 3, 63, 3, -1, 1),
    Sketcher.Constraint("Symmetric", 1, 3, 3, 3, -2),
    Sketcher.Constraint("Symmetric", 31, 3, 37, 3, -2),
    Sketcher.Constraint("Symmetric", 29, 3, 39, 3, -2),
    Sketcher.Constraint("Symmetric", 27, 3, 41, 3, -2),
    Sketcher.Constraint("Symmetric", 25, 3, 43, 3, -2),
    Sketcher.Constraint("Symmetric", 23, 3, 45, 3, -2),
    Sketcher.Constraint("Symmetric", 21, 3, 47, 3, -2),
    Sketcher.Constraint("Symmetric", 19, 3, 49, 3, -2),
    Sketcher.Constraint("Perpendicular", 4, 20),
    Sketcher.Constraint("Perpendicular", 8, 24),
    Sketcher.Constraint("Perpendicular", 12, 28),
    Sketcher.Constraint("Perpendicular", 20, 36),
    Sketcher.Constraint("Perpendicular", 24, 40),
    Sketcher.Constraint("Perpendicular", 28, 44),
    Sketcher.Constraint("Perpendicular", 36, 52),
    Sketcher.Constraint("Perpendicular", 40, 56),
    Sketcher.Constraint("Perpendicular", 44, 60),
    Sketcher.Constraint("Horizontal", 31, 2, 36, 2),
    Sketcher.Constraint("Horizontal", 28, 2, 39, 2),
    Sketcher.Constraint("Horizontal", 27, 2, 40, 2),
    Sketcher.Constraint("Horizontal", 24, 2, 43, 2),
    Sketcher.Constraint("Horizontal", 23, 2, 44, 2),
    Sketcher.Constraint("Horizontal", 19, 2, 48, 2),
    Sketcher.Constraint("Horizontal", 15, 2, 52, 2),
    Sketcher.Constraint("Horizontal", 11, 2, 56, 2),
    Sketcher.Constraint("Horizontal", 7, 2, 60, 2),
    Sketcher.Constraint("Vertical", 15, 2, 20, 2),
    Sketcher.Constraint("Vertical", 11, 2, 24, 2),
    Sketcher.Constraint("Vertical", 7, 2, 28, 2),
    Sketcher.Constraint("Vertical", 3, 2, 32, 2),
    Sketcher.Constraint("Equal", 32, 16),
    Sketcher.Constraint("Equal", 4, 8),
    Sketcher.Constraint("Equal", 8, 12),
    Sketcher.Constraint("Radius", 1, Q("11 mm")),
    Sketcher.Constraint("Radius", 2, Q("30 mm")),
    Sketcher.Constraint("DistanceX", 0, 2, 0, 1, Q("3 mm")),
    Sketcher.Constraint("Distance", 4, Q("3 mm")),
    Sketcher.Constraint("DistanceY", -1, 1, 0, 2, Q("36 mm")),
    Sketcher.Constraint("DistanceX", 1, 2, -1, 1, Q("4 mm")),
    Sketcher.Constraint("DistanceX", -1, 1, 16, 2, Q("36 mm")),
    Sketcher.Constraint("DistanceY", -1, 1, 17, 2, Q("4 mm")),
    Sketcher.Constraint("Angle", 4, Q("157.5 deg")),
    Sketcher.Constraint("DistanceX", -1, 1, 5, 3, Q("17.536771 mm")),
    Sketcher.Constraint("DistanceY", -1, 1, 5, 3, Q("24.111609 mm")),
    Sketcher.Constraint("DistanceY", -1, 1, 9, 3, Q("15.565191 mm")),
    Sketcher.Constraint("DistanceX", -1, 1, 11, 3, Q("15.565191 mm")),
    Sketcher.Constraint("DistanceX", -1, 1, 15, 3, Q("24.111609 mm")),
    Sketcher.Constraint("DistanceY", -1, 1, 15, 3, Q("17.536771 mm")),
    Sketcher.Constraint("DistanceY", -1, 1, 4, 2, Q("33.833688 mm")),
    Sketcher.Constraint("DistanceY", -1, 1, 6, 1, Q("25.93818 mm")),
    Sketcher.Constraint("DistanceX", -1, 1, 9, 2, Q("18.195369 mm")),
    Sketcher.Constraint("DistanceY", -1, 1, 10, 1, Q("18.195369 mm")),
    Sketcher.Constraint("DistanceX", -1, 1, 12, 2, Q("32.685638 mm")),
    Sketcher.Constraint("DistanceX", -1, 1, 13, 2, Q("25.93818 mm")),
])
sketch5.setExpression("Constraints[179]", "Params.sketch5_radius")
sketch5.setExpression("Constraints[180]", "Params.sketch5_radius2")
sketch5.setExpression("Constraints[181]", "Params.sketch5_width")
sketch5.setExpression("Constraints[182]", "Params.sketch5_length")
pad4 = body.newObject("PartDesign::Pad", "Pad003")
pad4.Profile = sketch5
pad4.setExpression("Length", "Params.pad4_length")
pad4.Midplane = True

doc.recompute()
